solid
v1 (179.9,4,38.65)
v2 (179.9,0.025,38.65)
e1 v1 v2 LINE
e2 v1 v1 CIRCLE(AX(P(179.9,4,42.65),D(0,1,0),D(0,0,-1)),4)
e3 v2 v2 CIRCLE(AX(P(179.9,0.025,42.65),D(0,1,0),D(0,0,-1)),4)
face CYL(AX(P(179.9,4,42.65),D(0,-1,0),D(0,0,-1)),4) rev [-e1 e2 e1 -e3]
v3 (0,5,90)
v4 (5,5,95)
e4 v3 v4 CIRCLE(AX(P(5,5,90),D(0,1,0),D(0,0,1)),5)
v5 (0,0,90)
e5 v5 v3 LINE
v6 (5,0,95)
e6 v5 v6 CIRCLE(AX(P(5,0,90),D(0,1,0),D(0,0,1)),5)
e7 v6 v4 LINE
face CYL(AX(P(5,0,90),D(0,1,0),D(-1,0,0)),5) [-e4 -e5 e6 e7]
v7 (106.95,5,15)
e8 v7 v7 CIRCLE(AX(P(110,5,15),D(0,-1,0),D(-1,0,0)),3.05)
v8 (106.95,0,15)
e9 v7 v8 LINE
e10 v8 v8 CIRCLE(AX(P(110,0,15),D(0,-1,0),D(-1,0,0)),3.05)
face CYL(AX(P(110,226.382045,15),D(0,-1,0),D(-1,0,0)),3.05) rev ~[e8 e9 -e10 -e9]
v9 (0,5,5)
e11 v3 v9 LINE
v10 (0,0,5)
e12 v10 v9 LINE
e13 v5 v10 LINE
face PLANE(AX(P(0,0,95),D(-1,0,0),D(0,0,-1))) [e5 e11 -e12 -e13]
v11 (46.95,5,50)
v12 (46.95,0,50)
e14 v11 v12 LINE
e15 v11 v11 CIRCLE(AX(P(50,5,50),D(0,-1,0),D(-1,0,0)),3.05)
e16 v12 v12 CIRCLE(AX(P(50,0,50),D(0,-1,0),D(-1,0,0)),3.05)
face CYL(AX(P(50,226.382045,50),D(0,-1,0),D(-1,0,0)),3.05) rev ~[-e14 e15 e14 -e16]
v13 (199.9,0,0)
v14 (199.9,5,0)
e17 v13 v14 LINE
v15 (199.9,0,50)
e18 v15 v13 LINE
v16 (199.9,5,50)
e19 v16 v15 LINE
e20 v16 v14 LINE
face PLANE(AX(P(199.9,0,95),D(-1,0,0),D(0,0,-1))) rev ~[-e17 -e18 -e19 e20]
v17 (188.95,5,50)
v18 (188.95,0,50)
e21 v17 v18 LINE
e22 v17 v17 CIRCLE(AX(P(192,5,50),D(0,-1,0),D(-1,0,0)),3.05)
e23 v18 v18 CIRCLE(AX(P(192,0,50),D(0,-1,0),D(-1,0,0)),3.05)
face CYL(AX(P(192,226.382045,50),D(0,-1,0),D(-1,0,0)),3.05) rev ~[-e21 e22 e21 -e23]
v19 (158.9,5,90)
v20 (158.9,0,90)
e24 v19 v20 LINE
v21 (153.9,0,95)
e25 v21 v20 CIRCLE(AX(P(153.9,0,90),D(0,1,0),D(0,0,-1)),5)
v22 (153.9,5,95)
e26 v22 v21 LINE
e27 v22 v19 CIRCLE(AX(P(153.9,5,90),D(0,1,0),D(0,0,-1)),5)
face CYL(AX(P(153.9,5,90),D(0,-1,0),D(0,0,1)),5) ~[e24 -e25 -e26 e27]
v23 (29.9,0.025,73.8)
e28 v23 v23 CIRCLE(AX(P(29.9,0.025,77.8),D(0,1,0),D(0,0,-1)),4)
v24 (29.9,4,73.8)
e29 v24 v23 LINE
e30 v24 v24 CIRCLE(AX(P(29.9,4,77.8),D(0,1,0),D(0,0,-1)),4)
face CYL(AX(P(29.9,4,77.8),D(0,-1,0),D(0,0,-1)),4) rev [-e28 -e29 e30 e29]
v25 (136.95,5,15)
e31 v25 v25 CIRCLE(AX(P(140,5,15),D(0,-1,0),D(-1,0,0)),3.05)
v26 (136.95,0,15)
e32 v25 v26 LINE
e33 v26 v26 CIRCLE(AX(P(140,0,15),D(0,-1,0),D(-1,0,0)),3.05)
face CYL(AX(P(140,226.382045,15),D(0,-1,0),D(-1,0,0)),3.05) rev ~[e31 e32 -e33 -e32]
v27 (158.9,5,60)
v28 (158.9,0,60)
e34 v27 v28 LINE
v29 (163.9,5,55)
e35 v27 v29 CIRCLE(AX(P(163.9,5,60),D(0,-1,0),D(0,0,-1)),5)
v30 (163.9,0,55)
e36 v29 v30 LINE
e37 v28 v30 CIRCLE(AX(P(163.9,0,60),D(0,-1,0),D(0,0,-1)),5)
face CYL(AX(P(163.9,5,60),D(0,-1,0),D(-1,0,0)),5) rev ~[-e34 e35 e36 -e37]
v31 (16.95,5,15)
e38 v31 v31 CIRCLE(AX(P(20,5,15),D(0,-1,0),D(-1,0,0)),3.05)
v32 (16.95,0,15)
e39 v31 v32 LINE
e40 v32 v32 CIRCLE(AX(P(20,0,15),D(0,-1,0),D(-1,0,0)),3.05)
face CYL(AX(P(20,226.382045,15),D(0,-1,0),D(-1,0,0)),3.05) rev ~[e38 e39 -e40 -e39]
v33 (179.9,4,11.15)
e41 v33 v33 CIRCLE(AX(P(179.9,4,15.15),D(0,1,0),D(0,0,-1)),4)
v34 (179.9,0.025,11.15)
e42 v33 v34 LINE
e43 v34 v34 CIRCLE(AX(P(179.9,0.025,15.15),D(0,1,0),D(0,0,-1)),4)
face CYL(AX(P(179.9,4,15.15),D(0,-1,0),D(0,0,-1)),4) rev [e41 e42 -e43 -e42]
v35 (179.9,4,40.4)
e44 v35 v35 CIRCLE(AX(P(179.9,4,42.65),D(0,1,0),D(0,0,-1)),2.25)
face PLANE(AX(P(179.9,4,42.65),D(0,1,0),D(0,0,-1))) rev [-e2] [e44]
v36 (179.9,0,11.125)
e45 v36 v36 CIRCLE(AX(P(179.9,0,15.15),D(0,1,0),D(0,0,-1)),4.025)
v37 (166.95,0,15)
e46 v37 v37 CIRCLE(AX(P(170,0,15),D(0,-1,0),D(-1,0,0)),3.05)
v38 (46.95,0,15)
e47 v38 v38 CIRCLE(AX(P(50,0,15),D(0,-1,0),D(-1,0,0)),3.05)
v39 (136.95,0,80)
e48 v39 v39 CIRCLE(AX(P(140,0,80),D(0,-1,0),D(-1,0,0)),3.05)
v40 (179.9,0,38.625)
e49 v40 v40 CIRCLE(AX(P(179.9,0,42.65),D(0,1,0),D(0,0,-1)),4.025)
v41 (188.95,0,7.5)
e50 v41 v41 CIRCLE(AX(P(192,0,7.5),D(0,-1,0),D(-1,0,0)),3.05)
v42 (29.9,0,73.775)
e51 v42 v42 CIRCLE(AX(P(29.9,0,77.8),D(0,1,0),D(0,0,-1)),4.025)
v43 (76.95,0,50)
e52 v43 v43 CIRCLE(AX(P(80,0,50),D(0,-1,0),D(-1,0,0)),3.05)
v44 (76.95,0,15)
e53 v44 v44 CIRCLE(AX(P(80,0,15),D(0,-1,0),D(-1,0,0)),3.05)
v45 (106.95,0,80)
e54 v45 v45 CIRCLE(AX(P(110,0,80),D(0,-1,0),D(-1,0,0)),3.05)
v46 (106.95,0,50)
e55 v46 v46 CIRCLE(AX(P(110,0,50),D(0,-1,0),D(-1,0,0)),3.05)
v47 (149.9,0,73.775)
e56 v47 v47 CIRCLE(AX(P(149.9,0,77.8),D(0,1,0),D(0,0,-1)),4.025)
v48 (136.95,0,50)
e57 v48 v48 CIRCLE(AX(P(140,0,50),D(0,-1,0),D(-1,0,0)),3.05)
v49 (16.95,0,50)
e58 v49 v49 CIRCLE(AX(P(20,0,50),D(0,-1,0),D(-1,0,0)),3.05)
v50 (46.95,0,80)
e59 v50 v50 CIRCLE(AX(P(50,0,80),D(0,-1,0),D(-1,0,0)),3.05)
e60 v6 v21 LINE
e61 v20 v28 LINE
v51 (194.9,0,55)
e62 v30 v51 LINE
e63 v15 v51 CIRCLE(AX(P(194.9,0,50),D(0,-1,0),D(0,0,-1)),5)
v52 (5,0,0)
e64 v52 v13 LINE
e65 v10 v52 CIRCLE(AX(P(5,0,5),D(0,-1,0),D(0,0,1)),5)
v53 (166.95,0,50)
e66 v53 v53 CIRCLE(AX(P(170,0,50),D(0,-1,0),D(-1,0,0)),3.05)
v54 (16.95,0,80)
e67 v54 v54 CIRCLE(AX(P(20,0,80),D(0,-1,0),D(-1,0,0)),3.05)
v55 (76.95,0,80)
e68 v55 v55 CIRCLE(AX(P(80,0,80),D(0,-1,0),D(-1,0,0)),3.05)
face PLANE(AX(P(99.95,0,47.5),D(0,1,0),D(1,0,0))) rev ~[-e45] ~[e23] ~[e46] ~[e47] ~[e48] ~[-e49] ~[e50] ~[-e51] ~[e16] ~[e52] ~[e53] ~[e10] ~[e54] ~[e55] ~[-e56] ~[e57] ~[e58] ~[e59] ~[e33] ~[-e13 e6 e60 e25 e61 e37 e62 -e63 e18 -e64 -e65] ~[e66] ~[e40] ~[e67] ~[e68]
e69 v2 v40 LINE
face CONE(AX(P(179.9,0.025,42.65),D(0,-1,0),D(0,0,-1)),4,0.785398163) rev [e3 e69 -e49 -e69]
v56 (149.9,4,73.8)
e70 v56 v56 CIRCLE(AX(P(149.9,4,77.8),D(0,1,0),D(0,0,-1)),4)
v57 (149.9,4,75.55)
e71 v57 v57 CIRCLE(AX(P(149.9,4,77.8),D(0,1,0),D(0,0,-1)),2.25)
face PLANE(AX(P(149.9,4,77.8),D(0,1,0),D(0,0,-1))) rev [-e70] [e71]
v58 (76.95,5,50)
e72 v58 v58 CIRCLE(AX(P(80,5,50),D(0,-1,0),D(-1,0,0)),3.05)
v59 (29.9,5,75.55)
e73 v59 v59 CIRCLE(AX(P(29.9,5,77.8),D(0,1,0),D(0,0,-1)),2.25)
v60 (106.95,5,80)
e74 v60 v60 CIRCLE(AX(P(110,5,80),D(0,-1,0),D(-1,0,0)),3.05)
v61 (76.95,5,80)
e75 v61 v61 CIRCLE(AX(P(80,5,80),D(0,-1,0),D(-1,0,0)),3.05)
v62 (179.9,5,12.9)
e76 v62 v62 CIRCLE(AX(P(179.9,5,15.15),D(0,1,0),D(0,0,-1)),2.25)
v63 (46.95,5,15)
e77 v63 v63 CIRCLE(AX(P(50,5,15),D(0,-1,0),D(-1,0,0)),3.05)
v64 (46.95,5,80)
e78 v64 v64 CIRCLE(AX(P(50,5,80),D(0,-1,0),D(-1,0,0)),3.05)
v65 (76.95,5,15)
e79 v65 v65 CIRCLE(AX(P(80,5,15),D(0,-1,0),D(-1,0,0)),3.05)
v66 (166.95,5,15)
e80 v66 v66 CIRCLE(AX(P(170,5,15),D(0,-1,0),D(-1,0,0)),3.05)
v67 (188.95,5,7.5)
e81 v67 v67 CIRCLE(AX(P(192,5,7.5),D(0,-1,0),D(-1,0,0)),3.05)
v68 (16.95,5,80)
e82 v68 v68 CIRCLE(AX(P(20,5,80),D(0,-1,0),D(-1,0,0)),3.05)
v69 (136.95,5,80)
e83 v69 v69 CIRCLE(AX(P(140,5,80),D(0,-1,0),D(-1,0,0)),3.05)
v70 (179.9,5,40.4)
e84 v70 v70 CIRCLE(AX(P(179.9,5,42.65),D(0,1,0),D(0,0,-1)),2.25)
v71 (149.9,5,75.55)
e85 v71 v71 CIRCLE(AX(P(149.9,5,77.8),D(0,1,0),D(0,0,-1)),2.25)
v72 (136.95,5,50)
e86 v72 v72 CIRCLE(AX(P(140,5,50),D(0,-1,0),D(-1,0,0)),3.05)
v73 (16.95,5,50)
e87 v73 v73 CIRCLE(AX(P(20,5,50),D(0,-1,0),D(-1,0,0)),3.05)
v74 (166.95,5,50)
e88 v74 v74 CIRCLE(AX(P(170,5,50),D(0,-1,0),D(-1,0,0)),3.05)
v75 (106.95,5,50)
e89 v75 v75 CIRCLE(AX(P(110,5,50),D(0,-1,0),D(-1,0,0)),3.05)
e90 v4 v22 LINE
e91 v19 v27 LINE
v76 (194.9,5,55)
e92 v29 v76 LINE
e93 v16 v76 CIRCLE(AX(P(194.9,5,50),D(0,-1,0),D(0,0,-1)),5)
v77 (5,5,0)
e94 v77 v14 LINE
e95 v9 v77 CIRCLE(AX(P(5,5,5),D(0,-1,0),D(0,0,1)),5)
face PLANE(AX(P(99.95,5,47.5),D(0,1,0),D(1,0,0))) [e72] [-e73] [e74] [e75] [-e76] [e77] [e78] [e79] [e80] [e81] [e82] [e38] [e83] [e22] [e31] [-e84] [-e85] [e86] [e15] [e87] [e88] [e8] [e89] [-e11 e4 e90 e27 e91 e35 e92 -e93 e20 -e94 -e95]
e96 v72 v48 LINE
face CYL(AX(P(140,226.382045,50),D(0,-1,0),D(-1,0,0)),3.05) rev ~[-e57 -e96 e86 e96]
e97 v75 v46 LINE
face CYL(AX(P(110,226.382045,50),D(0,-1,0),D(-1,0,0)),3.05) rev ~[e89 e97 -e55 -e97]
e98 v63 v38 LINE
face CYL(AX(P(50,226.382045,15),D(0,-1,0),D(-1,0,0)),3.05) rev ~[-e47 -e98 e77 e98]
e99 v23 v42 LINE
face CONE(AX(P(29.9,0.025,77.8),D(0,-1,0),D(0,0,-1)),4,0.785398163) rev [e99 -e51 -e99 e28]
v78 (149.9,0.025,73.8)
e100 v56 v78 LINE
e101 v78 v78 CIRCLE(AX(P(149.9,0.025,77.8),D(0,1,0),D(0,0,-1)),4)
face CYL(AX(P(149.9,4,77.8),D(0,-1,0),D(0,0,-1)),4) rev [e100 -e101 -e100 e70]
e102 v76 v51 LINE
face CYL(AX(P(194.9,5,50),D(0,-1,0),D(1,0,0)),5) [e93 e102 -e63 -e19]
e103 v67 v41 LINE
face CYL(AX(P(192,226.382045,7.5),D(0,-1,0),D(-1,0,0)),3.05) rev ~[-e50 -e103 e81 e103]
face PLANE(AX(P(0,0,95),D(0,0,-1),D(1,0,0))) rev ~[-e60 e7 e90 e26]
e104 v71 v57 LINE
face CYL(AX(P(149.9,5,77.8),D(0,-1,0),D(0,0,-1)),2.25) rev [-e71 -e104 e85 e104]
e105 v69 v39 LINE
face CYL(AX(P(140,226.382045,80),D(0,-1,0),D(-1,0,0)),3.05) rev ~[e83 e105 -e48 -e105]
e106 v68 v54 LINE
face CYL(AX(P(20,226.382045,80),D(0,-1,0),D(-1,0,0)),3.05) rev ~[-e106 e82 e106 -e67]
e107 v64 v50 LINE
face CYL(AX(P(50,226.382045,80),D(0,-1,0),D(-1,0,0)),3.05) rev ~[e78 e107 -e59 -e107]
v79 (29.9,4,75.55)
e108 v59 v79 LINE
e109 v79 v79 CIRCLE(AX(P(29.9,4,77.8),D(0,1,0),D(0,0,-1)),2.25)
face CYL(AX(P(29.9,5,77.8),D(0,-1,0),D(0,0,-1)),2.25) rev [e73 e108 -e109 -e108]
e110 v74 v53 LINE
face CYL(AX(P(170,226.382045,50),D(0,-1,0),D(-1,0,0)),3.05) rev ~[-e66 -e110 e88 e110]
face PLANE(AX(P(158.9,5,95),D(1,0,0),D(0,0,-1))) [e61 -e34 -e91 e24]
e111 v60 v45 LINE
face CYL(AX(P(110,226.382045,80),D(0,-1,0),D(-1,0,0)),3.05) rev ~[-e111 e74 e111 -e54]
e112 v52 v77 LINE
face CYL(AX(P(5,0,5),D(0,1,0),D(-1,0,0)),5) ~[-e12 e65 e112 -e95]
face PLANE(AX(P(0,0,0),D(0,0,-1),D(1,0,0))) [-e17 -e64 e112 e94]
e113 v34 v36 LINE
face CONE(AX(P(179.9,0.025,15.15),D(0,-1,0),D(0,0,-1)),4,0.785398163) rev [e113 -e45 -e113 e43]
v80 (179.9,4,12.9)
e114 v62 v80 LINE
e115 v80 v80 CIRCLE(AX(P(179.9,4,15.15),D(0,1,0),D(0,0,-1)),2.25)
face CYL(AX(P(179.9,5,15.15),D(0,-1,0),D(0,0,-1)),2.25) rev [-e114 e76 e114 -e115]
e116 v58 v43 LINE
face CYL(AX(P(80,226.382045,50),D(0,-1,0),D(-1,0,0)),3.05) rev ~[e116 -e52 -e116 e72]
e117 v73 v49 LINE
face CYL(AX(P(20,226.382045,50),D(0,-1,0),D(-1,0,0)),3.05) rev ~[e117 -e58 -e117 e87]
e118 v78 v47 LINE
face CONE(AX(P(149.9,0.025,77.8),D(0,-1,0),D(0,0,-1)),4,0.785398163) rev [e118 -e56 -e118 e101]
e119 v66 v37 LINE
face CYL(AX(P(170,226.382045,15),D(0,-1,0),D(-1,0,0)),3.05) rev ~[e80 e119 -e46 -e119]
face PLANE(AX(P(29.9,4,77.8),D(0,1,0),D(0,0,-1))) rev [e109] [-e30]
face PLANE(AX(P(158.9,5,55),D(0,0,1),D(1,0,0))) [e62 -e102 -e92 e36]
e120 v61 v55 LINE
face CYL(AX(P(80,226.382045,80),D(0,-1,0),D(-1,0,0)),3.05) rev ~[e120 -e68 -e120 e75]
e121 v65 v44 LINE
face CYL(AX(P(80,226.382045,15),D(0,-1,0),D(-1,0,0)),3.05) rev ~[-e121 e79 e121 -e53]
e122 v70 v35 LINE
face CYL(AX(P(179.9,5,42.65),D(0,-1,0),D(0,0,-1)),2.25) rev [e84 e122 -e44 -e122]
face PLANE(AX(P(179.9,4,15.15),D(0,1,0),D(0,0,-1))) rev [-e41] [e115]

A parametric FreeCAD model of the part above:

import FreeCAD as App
import Part
import Sketcher
Q = App.Units.Quantity


def edges_at(feature, points):
    """Names of the edges that pass closest to the given points."""
    edges = feature.Shape.Edges
    near = lambda p: min(range(len(edges)), key=lambda i: edges[i].distToShape(Part.Vertex(*p))[0])
    return sorted({f"Edge{near(p) + 1}" for p in points})


def add_polygon(sketch, points):
    """Adds a closed chain of lines whose ends are joined by coincident constraints."""
    first, n = sketch.GeometryCount, len(points)
    for a, b in zip(points, points[1:] + points[:1]):
        sketch.addGeometry(Part.LineSegment(App.Vector(*a, 0), App.Vector(*b, 0)), False)
    for i in range(n):
        sketch.addConstraint(Sketcher.Constraint("Coincident", first + i, 2, first + (i + 1) % n, 1))

doc = App.newDocument("Part")
body = doc.addObject("PartDesign::Body", "Body")

sketch1 = body.newObject("Sketcher::SketchObject", "Sketch")
sketch1.AttachmentSupport = (doc.getObject("XZ_Plane"), [""])
sketch1.MapMode = "FlatFace"
add_polygon(sketch1, [(0, 0), (0, 95), (200, 95), (200, 0)])
sketch1.addConstraint(Sketcher.Constraint("Vertical", 0))
sketch1.addConstraint(Sketcher.Constraint("Horizontal", 1))
sketch1.addConstraint(Sketcher.Constraint("Vertical", 2))
sketch1.addConstraint(Sketcher.Constraint("Horizontal", 3))
sketch1.addConstraint(Sketcher.Constraint("Coincident", 3, 2, -1, 1))
sketch1.addConstraint(Sketcher.Constraint("DistanceY", 0, 1, 0, 2, Q("95 mm")))
sketch1.addConstraint(Sketcher.Constraint("DistanceX", 1, 1, 1, 2, Q("199.9 mm")))
pad1 = body.newObject("PartDesign::Pad", "Pad")
pad1.Profile = sketch1
pad1.Length = 5
pad1.Reversed = True

sketch2 = body.newObject("Sketcher::SketchObject", "Sketch001")
sketch2.AttachmentSupport = (doc.getObject("YZ_Plane"), [""])
sketch2.MapMode = "FlatFace"
sketch2.AttachmentOffset = App.Placement(App.Vector(0, 0, 179.9), App.Rotation())
add_polygon(sketch2, [(5, 15.15), (0, 15.15), (0, 11.125), (0.025, 11.15), (4, 11.15), (4, 12.9), (5, 12.9)])
sketch2.addGeometry(Part.LineSegment(App.Vector(0, 15.15, 0), App.Vector(5, 15.15, 0)), True)
sketch2.addConstraint(Sketcher.Constraint("Horizontal", 0))
sketch2.addConstraint(Sketcher.Constraint("Vertical", 1))
sketch2.addConstraint(Sketcher.Constraint("Horizontal", 3))
sketch2.addConstraint(Sketcher.Constraint("Vertical", 4))
sketch2.addConstraint(Sketcher.Constraint("Horizontal", 5))
sketch2.addConstraint(Sketcher.Constraint("Vertical", 6))
sketch2.addConstraint(Sketcher.Constraint("Horizontal", 7))
sketch2.addConstraint(Sketcher.Constraint("Coincident", 7, 1, 0, 2))
sketch2.addConstraint(Sketcher.Constraint("PointOnObject", 0, 2, -2))
sketch2.addConstraint(Sketcher.Constraint("Vertical", 5, 2, 7, 2))
sketch2.addConstraint(Sketcher.Constraint("DistanceX", 0, 2, 0, 1, Q("5 mm")))
sketch2.addConstraint(Sketcher.Constraint("DistanceX", 5, 1, 5, 2, Q("1 mm")))
sketch2.addConstraint(Sketcher.Constraint("Angle", 2, Q("45 deg")))
sketch2.addConstraint(Sketcher.Constraint("DistanceY", 2, 2, 0, 2, Q("4 mm")))
sketch2.addConstraint(Sketcher.Constraint("DistanceY", 4, 1, 4, 2, Q("1.75 mm")))
sketch2.addConstraint(Sketcher.Constraint("DistanceY", -1, 1, 4, 2, Q("12.9 mm")))
sketch2.addConstraint(Sketcher.Constraint("DistanceX", 3, 1, 3, 2, Q("3.975 mm")))
groove = body.newObject("PartDesign::Groove", "Groove")
groove.Profile = sketch2
groove.ReferenceAxis = (sketch2, ["Axis0"])
groove.Angle = 360
doc.recompute()

datumline = body.newObject("PartDesign::Line", "DatumLine")
datumline.Placement = App.Placement(App.Vector(0, 0, 0), App.Rotation(App.Vector(0, 0, 1), App.Vector(-0.431888443, 0, 0.901927033)))
linearpattern = body.newObject("PartDesign::LinearPattern", "LinearPattern")
linearpattern.Originals = [groove]
linearpattern.Direction = (datumline, [""])
linearpattern.Mode = "offset"
linearpattern.Offset = 69.462382
linearpattern.Occurrences = 2
body.Tip = linearpattern
doc.recompute()

datumline2 = body.newObject("PartDesign::Line", "DatumLine001")
datumline2.Placement = App.Placement(App.Vector(0, 0, 0), App.Rotation(App.Vector(0, 0, 1), App.Vector(-0.922748985, 0, 0.385401493)))
linearpattern2 = body.newObject("PartDesign::LinearPattern", "LinearPattern001")
linearpattern2.Originals = [groove]
linearpattern2.Direction = (datumline2, [""])
linearpattern2.Mode = "offset"
linearpattern2.Offset = 162.557751
linearpattern2.Occurrences = 2
body.Tip = linearpattern2
doc.recompute()

linearpattern3 = body.newObject("PartDesign::LinearPattern", "LinearPattern002")
linearpattern3.Originals = [groove]
linearpattern3.Direction = (doc.getObject("Z_Axis"), [""])
linearpattern3.Mode = "offset"
linearpattern3.Offset = 27.5
linearpattern3.Occurrences = 2
body.Tip = linearpattern3

sketch3 = body.newObject("Sketcher::SketchObject", "Sketch002")
sketch3.AttachmentSupport = (doc.getObject("XZ_Plane"), [""])
sketch3.MapMode = "FlatFace"
sketch3.AttachmentOffset = App.Placement(App.Vector(0, 0, -5), App.Rotation())
sketch3.addGeometry(Part.Circle(App.Vector(170, 15, 0), App.Vector(0, 0, 1), 3), False)
sketch3.addGeometry(Part.Circle(App.Vector(20, 15, 0), App.Vector(0, 0, 1), 3), False)
sketch3.addGeometry(Part.Circle(App.Vector(50, 15, 0), App.Vector(0, 0, 1), 3), False)
sketch3.addGeometry(Part.Circle(App.Vector(80, 15, 0), App.Vector(0, 0, 1), 3), False)
sketch3.addGeometry(Part.Circle(App.Vector(110, 15, 0), App.Vector(0, 0, 1), 3), False)
sketch3.addGeometry(Part.Circle(App.Vector(140, 15, 0), App.Vector(0, 0, 1), 3), False)
sketch3.addConstraint(Sketcher.Constraint("Equal", 0, 1))
sketch3.addConstraint(Sketcher.Constraint("Equal", 1, 2))
sketch3.addConstraint(Sketcher.Constraint("Equal", 2, 3))
sketch3.addConstraint(Sketcher.Constraint("Equal", 3, 4))
sketch3.addConstraint(Sketcher.Constraint("Equal", 4, 5))
sketch3.addConstraint(Sketcher.Constraint("Horizontal", 0, 3, 1, 3))
sketch3.addConstraint(Sketcher.Constraint("Horizontal", 1, 3, 2, 3))
sketch3.addConstraint(Sketcher.Constraint("Horizontal", 2, 3, 3, 3))
sketch3.addConstraint(Sketcher.Constraint("Horizontal", 3, 3, 4, 3))
sketch3.addConstraint(Sketcher.Constraint("Horizontal", 4, 3, 5, 3))
sketch3.addConstraint(Sketcher.Constraint("Diameter", 0, Q("6.1 mm")))
sketch3.addConstraint(Sketcher.Constraint("DistanceX", -1, 1, 0, 3, Q("170 mm")))
sketch3.addConstraint(Sketcher.Constraint("DistanceY", -1, 1, 0, 3, Q("15 mm")))
sketch3.addConstraint(Sketcher.Constraint("DistanceX", -1, 1, 1, 3, Q("20 mm")))
sketch3.addConstraint(Sketcher.Constraint("DistanceX", -1, 1, 2, 3, Q("50 mm")))
sketch3.addConstraint(Sketcher.Constraint("DistanceX", -1, 1, 3, 3, Q("80 mm")))
sketch3.addConstraint(Sketcher.Constraint("DistanceX", -1, 1, 4, 3, Q("110 mm")))
sketch3.addConstraint(Sketcher.Constraint("DistanceX", -1, 1, 5, 3, Q("140 mm")))
doc.recompute()
hole = body.newObject("PartDesign::Hole", "Hole")
hole.Profile = sketch3
hole.ThreadType = "None"
hole.Diameter = 6.1
hole.DepthType = "ThroughAll"
hole.Reversed = True
doc.recompute()

linearpattern4 = body.newObject("PartDesign::LinearPattern", "LinearPattern003")
linearpattern4.Originals = [hole]
linearpattern4.Direction = (doc.getObject("Z_Axis"), [""])
linearpattern4.Mode = "offset"
linearpattern4.Offset = 35
linearpattern4.Occurrences = 2
body.Tip = linearpattern4

sketch4 = body.newObject("Sketcher::SketchObject", "Sketch003")
sketch4.AttachmentSupport = (doc.getObject("XZ_Plane"), [""])
sketch4.MapMode = "FlatFace"
sketch4.AttachmentOffset = App.Placement(App.Vector(0, 0, -5), App.Rotation())
add_polygon(sketch4, [(159, 55), (159, 95), (200, 95), (200, 55)])
sketch4.addConstraint(Sketcher.Constraint("Vertical", 0))
sketch4.addConstraint(Sketcher.Constraint("Horizontal", 1))
sketch4.addConstraint(Sketcher.Constraint("Vertical", 2))
sketch4.addConstraint(Sketcher.Constraint("Horizontal", 3))
sketch4.addConstraint(Sketcher.Constraint("DistanceX", 1, 1, 1, 2, Q("41 mm")))
sketch4.addConstraint(Sketcher.Constraint("DistanceY", 0, 1, 0, 2, Q("40 mm")))
sketch4.addConstraint(Sketcher.Constraint("DistanceY", -1, 1, 0, 2, Q("95 mm")))
sketch4.addConstraint(Sketcher.Constraint("DistanceX", -1, 1, 0, 2, Q("158.9 mm")))
pocket1 = body.newObject("PartDesign::Pocket", "Pocket")
pocket1.Profile = sketch4
pocket1.Type = "ThroughAll"
pocket1.Reversed = True
doc.recompute()

linearpattern5 = body.newObject("PartDesign::LinearPattern", "LinearPattern004")
linearpattern5.Originals = [hole]
linearpattern5.Direction = (doc.getObject("Z_Axis"), [""])
linearpattern5.Mode = "offset"
linearpattern5.Offset = 65
linearpattern5.Occurrences = 2
body.Tip = linearpattern5
doc.recompute()

fillet = body.newObject("PartDesign::Fillet", "Fillet")
fillet.Base = (linearpattern5, edges_at(linearpattern5, [
    (199.9, 2.5, 55),
    (158.9, 2.5, 95),
    (158.9, 2.5, 55),
    (0, 2.5, 0),
    (0, 2.5, 95),
]))
fillet.Radius = 5

sketch5 = body.newObject("Sketcher::SketchObject", "Sketch004")
sketch5.AttachmentSupport = (doc.getObject("XZ_Plane"), [""])
sketch5.MapMode = "FlatFace"
sketch5.AttachmentOffset = App.Placement(App.Vector(0, 0, -5), App.Rotation())
sketch5.addGeometry(Part.Circle(App.Vector(192, 50, 0), App.Vector(0, 0, 1), 3), False)
sketch5.addGeometry(Part.Circle(App.Vector(192, 7.5, 0), App.Vector(0, 0, 1), 3), False)
sketch5.addConstraint(Sketcher.Constraint("Equal", 0, 1))
sketch5.addConstraint(Sketcher.Constraint("Vertical", 0, 3, 1, 3))
sketch5.addConstraint(Sketcher.Constraint("Diameter", 0, Q("6.1 mm")))
sketch5.addConstraint(Sketcher.Constraint("DistanceX", -1, 1, 0, 3, Q("192 mm")))
sketch5.addConstraint(Sketcher.Constraint("DistanceY", -1, 1, 0, 3, Q("50 mm")))
sketch5.addConstraint(Sketcher.Constraint("DistanceY", -1, 1, 1, 3, Q("7.5 mm")))
doc.recompute()
hole2 = body.newObject("PartDesign::Hole", "Hole001")
hole2.Profile = sketch5
hole2.ThreadType = "None"
hole2.Diameter = 6.1
hole2.DepthType = "ThroughAll"
hole2.Reversed = True

doc.recompute()
